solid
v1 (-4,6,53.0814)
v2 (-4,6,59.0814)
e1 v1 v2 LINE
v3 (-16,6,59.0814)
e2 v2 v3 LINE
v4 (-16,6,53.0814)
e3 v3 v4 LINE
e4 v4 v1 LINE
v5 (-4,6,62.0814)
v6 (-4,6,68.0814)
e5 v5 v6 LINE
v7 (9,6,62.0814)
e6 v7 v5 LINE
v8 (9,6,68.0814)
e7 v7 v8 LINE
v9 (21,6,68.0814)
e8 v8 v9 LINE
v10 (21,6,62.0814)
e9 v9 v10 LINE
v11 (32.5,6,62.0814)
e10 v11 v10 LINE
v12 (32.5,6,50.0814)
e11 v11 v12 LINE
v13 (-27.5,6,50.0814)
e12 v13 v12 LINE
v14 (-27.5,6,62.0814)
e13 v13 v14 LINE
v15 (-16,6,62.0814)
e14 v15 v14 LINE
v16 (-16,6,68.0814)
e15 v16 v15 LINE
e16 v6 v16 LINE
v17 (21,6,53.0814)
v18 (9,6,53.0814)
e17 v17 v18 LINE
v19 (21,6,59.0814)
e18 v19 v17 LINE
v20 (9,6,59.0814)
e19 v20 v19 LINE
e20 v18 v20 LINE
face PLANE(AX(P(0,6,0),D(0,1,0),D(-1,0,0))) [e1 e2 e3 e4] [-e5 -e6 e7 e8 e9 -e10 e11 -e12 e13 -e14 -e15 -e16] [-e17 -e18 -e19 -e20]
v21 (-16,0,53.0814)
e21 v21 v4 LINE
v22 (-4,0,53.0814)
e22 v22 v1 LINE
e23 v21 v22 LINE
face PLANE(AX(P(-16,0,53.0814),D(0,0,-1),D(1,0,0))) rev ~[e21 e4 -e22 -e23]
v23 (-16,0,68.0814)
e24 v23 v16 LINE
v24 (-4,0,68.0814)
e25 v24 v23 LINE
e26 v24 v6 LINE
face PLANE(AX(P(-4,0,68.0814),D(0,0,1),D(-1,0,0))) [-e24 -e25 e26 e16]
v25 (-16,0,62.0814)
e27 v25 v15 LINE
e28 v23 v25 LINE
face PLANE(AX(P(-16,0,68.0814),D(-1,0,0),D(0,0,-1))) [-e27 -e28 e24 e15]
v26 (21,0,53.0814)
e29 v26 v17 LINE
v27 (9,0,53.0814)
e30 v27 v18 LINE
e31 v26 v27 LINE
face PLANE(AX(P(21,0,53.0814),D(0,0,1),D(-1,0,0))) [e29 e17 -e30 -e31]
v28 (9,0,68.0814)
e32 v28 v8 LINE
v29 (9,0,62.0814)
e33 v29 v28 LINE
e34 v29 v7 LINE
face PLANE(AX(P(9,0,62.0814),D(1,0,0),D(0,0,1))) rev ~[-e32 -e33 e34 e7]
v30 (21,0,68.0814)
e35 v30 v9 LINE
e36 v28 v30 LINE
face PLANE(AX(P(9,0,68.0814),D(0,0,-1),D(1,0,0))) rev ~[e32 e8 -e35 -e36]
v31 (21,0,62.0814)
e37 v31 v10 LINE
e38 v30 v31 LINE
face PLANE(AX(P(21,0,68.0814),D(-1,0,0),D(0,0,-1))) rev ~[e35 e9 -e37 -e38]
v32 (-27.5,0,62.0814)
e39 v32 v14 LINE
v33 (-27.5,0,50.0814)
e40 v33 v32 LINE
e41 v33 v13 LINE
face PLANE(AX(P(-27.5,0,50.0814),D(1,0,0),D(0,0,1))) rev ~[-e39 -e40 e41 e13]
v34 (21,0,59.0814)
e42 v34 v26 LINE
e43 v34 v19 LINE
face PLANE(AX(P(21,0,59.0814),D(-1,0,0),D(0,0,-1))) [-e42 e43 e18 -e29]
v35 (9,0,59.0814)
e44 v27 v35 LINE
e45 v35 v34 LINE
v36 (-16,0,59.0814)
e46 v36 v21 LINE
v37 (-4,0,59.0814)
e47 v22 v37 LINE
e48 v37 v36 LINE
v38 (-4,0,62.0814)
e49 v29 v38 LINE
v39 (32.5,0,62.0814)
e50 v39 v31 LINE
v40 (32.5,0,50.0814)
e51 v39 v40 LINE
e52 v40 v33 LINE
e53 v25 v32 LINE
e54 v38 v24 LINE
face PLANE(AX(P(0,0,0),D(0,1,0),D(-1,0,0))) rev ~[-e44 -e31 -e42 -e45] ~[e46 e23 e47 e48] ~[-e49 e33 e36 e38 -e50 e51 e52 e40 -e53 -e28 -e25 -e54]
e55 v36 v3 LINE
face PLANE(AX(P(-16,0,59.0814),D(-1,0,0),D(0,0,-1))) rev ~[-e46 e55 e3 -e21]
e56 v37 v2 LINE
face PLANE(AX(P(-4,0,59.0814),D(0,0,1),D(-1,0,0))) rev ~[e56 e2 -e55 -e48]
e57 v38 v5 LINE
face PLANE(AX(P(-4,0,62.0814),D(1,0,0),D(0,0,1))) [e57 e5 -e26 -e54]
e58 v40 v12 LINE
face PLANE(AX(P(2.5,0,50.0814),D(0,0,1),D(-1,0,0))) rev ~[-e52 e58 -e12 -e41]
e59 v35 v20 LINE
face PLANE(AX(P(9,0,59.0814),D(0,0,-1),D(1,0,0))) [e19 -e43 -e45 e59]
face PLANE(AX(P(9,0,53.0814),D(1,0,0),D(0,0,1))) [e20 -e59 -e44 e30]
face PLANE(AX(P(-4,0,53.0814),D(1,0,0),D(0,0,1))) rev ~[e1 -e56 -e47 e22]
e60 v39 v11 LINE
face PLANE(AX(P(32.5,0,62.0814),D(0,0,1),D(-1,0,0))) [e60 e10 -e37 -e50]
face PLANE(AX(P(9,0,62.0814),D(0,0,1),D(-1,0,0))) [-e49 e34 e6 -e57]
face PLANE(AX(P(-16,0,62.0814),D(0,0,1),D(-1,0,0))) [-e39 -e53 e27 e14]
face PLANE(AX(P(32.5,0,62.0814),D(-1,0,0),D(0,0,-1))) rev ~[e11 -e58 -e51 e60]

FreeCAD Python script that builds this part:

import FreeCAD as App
import Part
import Sketcher
Q = App.Units.Quantity

doc = App.newDocument("Part")
body = doc.addObject("PartDesign::Body", "Body")

sketch1 = body.newObject("Sketcher::SketchObject", "Sketch")
sketch1.AttachmentSupport = (doc.getObject("XZ_Plane"), [""])
sketch1.MapMode = "FlatFace"
sketch1.addGeometry([
    Part.LineSegment(App.Vector(-28, 50, 0), App.Vector(-28, 62, 0)),
    Part.LineSegment(App.Vector(-28, 62, 0), App.Vector(-16, 62, 0)),
    Part.LineSegment(App.Vector(-16, 62, 0), App.Vector(-16, 68, 0)),
    Part.LineSegment(App.Vector(-16, 68, 0), App.Vector(-4, 68, 0)),
    Part.LineSegment(App.Vector(-4, 68, 0), App.Vector(-4, 62, 0)),
    Part.LineSegment(App.Vector(-4, 62, 0), App.Vector(9, 62, 0)),
    Part.LineSegment(App.Vector(9, 62, 0), App.Vector(9, 68, 0)),
    Part.LineSegment(App.Vector(9, 68, 0), App.Vector(21, 68, 0)),
    Part.LineSegment(App.Vector(21, 68, 0), App.Vector(21, 62, 0)),
    Part.LineSegment(App.Vector(21, 62, 0), App.Vector(32, 62, 0)),
    Part.LineSegment(App.Vector(32, 62, 0), App.Vector(32, 50, 0)),
    Part.LineSegment(App.Vector(32, 50, 0), App.Vector(-28, 50, 0)),
    Part.LineSegment(App.Vector(21, 59, 0), App.Vector(9, 59, 0)),
    Part.LineSegment(App.Vector(9, 59, 0), App.Vector(9, 53, 0)),
    Part.LineSegment(App.Vector(9, 53, 0), App.Vector(21, 53, 0)),
    Part.LineSegment(App.Vector(21, 53, 0), App.Vector(21, 59, 0)),
    Part.LineSegment(App.Vector(-4, 53, 0), App.Vector(-4, 59, 0)),
    Part.LineSegment(App.Vector(-4, 59, 0), App.Vector(-16, 59, 0)),
    Part.LineSegment(App.Vector(-16, 59, 0), App.Vector(-16, 53, 0)),
    Part.LineSegment(App.Vector(-16, 53, 0), App.Vector(-4, 53, 0)),
], False)
sketch1.addConstraint([
    Sketcher.Constraint("Coincident", 0, 2, 1, 1),
    Sketcher.Constraint("Coincident", 1, 2, 2, 1),
    Sketcher.Constraint("Coincident", 2, 2, 3, 1),
    Sketcher.Constraint("Coincident", 3, 2, 4, 1),
    Sketcher.Constraint("Coincident", 4, 2, 5, 1),
    Sketcher.Constraint("Coincident", 5, 2, 6, 1),
    Sketcher.Constraint("Coincident", 6, 2, 7, 1),
    Sketcher.Constraint("Coincident", 7, 2, 8, 1),
    Sketcher.Constraint("Coincident", 8, 2, 9, 1),
    Sketcher.Constraint("Coincident", 9, 2, 10, 1),
    Sketcher.Constraint("Coincident", 10, 2, 11, 1),
    Sketcher.Constraint("Coincident", 11, 2, 0, 1),
    Sketcher.Constraint("Coincident", 12, 2, 13, 1),
    Sketcher.Constraint("Coincident", 13, 2, 14, 1),
    Sketcher.Constraint("Coincident", 14, 2, 15, 1),
    Sketcher.Constraint("Coincident", 15, 2, 12, 1),
    Sketcher.Constraint("Coincident", 16, 2, 17, 1),
    Sketcher.Constraint("Coincident", 17, 2, 18, 1),
    Sketcher.Constraint("Coincident", 18, 2, 19, 1),
    Sketcher.Constraint("Coincident", 19, 2, 16, 1),
    Sketcher.Constraint("Vertical", 0),
    Sketcher.Constraint("Horizontal", 1),
    Sketcher.Constraint("Vertical", 2),
    Sketcher.Constraint("Horizontal", 3),
    Sketcher.Constraint("Vertical", 4),
    Sketcher.Constraint("Horizontal", 5),
    Sketcher.Constraint("Vertical", 6),
    Sketcher.Constraint("Horizontal", 7),
    Sketcher.Constraint("Vertical", 8),
    Sketcher.Constraint("Horizontal", 9),
    Sketcher.Constraint("Vertical", 10),
    Sketcher.Constraint("Horizontal", 11),
    Sketcher.Constraint("Horizontal", 12),
    Sketcher.Constraint("Vertical", 13),
    Sketcher.Constraint("Horizontal", 14),
    Sketcher.Constraint("Vertical", 15),
    Sketcher.Constraint("Vertical", 16),
    Sketcher.Constraint("Horizontal", 17),
    Sketcher.Constraint("Vertical", 18),
    Sketcher.Constraint("Horizontal", 19),
    Sketcher.Constraint("Horizontal", 1, 2, 4, 2),
    Sketcher.Constraint("Horizontal", 3, 2, 6, 2),
    Sketcher.Constraint("Horizontal", 5, 2, 8, 2),
    Sketcher.Constraint("Horizontal", 15, 2, 16, 2),
    Sketcher.Constraint("Horizontal", 14, 2, 18, 2),
    Sketcher.Constraint("Vertical", 6, 2, 12, 2),
    Sketcher.Constraint("Vertical", 8, 2, 14, 2),
    Sketcher.Constraint("Vertical", 4, 2, 16, 2),
    Sketcher.Constraint("Vertical", 2, 2, 17, 2),
    Sketcher.Constraint("Equal", 3, 7),
    Sketcher.Constraint("Equal", 1, 9),
    Sketcher.Constraint("Equal", 19, 0),
    Sketcher.Constraint("Equal", 8, 13),
    Sketcher.Constraint("DistanceX", 3, 1, 3, 2, Q("12 mm")),
    Sketcher.Constraint("DistanceX", 11, 2, 11, 1, Q("60 mm")),
    Sketcher.Constraint("DistanceY", 2, 1, 2, 2, Q("6 mm")),
    Sketcher.Constraint("DistanceY", 12, 2, 5, 2, Q("3 mm")),
    Sketcher.Constraint("DistanceX", 5, 1, 5, 2, Q("13 mm")),
    Sketcher.Constraint("DistanceX", 1, 2, -1, 1, Q("16 mm")),
    Sketcher.Constraint("DistanceY", -1, 1, 0, 2, Q("62.0814 mm")),
])
pad1 = body.newObject("PartDesign::Pad", "Pad")
pad1.Profile = sketch1
pad1.Length = 6
pad1.Reversed = True

sketch2 = body.newObject("Sketcher::SketchObject", "Sketch001")
sketch2.AttachmentSupport = (doc.getObject("XZ_Plane"), [""])
sketch2.MapMode = "FlatFace"
sketch2.addGeometry([
    Part.LineSegment(App.Vector(-8.5, 44.1, 0), App.Vector(-8.5, 50.1, 0)),
    Part.LineSegment(App.Vector(-8.5, 50.1, 0), App.Vector(-2.5, 50.1, 0)),
    Part.LineSegment(App.Vector(-2.5, 50.1, 0), App.Vector(-2.5, 44.1, 0)),
    Part.LineSegment(App.Vector(-2.5, 44.1, 0), App.Vector(-8.5, 44.1, 0)),
    Part.LineSegment(App.Vector(-8.5, -6.9, 0), App.Vector(-8.5, -0.9, 0)),
    Part.LineSegment(App.Vector(-8.5, -0.9, 0), App.Vector(-2.5, -0.9, 0)),
    Part.LineSegment(App.Vector(-2.5, -0.9, 0), App.Vector(-2.5, -6.9, 0)),
    Part.LineSegment(App.Vector(-2.5, -6.9, 0), App.Vector(-8.5, -6.9, 0)),
    Part.LineSegment(App.Vector(-8.5, 35.1, 0), App.Vector(-1.5, 35.1, 0)),
    Part.LineSegment(App.Vector(-1.5, 35.1, 0), App.Vector(-1.5, 40.1, 0)),
    Part.LineSegment(App.Vector(-1.5, 40.1, 0), App.Vector(5.5, 40.1, 0)),
    Part.LineSegment(App.Vector(5.5, 40.1, 0), App.Vector(5.5, 35.1, 0)),
    Part.LineSegment(App.Vector(5.5, 35.1, 0), App.Vector(9.5, 35.1, 0)),
    Part.LineSegment(App.Vector(9.5, 35.1, 0), App.Vector(9.5, 13.1, 0)),
    Part.LineSegment(App.Vector(9.5, 13.1, 0), App.Vector(-8.5, 13.1, 0)),
    Part.LineSegment(App.Vector(-8.5, 13.1, 0), App.Vector(-8.5, 35.1, 0)),
], False)
sketch2.addConstraint([
    Sketcher.Constraint("Coincident", 0, 2, 1, 1),
    Sketcher.Constraint("Coincident", 1, 2, 2, 1),
    Sketcher.Constraint("Coincident", 2, 2, 3, 1),
    Sketcher.Constraint("Coincident", 3, 2, 0, 1),
    Sketcher.Constraint("Coincident", 4, 2, 5, 1),
    Sketcher.Constraint("Coincident", 5, 2, 6, 1),
    Sketcher.Constraint("Coincident", 6, 2, 7, 1),
    Sketcher.Constraint("Coincident", 7, 2, 4, 1),
    Sketcher.Constraint("Coincident", 8, 2, 9, 1),
    Sketcher.Constraint("Coincident", 9, 2, 10, 1),
    Sketcher.Constraint("Coincident", 10, 2, 11, 1),
    Sketcher.Constraint("Coincident", 11, 2, 12, 1),
    Sketcher.Constraint("Coincident", 12, 2, 13, 1),
    Sketcher.Constraint("Coincident", 13, 2, 14, 1),
    Sketcher.Constraint("Coincident", 14, 2, 15, 1),
    Sketcher.Constraint("Coincident", 15, 2, 8, 1),
    Sketcher.Constraint("Vertical", 0),
    Sketcher.Constraint("Horizontal", 1),
    Sketcher.Constraint("Vertical", 2),
    Sketcher.Constraint("Horizontal", 3),
    Sketcher.Constraint("Vertical", 4),
    Sketcher.Constraint("Horizontal", 5),
    Sketcher.Constraint("Vertical", 6),
    Sketcher.Constraint("Horizontal", 7),
    Sketcher.Constraint("Horizontal", 8),
    Sketcher.Constraint("Vertical", 9),
    Sketcher.Constraint("Horizontal", 10),
    Sketcher.Constraint("Vertical", 11),
    Sketcher.Constraint("Horizontal", 12),
    Sketcher.Constraint("Vertical", 13),
    Sketcher.Constraint("Horizontal", 14),
    Sketcher.Constraint("Vertical", 15),
    Sketcher.Constraint("Horizontal", 8, 2, 11, 2),
    Sketcher.Constraint("Vertical", 3, 2, 4, 2),
    Sketcher.Constraint("Vertical", 2, 2, 5, 2),
    Sketcher.Constraint("Vertical", 7, 2, 14, 2),
    Sketcher.Constraint("Equal", 8, 10),
    Sketcher.Constraint("Equal", 7, 0),
    Sketcher.Constraint("Equal", 2, 4),
    Sketcher.Constraint("DistanceX", 1, 1, 1, 2, Q("6 mm")),
    Sketcher.Constraint("DistanceX", 8, 1, 8, 2, Q("7 mm")),
    Sketcher.Constraint("DistanceX", 14, 2, 14, 1, Q("18 mm")),
    Sketcher.Constraint("DistanceY", 9, 1, 9, 2, Q("5 mm")),
    Sketcher.Constraint("DistanceY", 13, 2, 13, 1, Q("22 mm")),
    Sketcher.Constraint("DistanceY", 4, 2, 3, 2, Q("45 mm")),
    Sketcher.Constraint("DistanceY", 8, 2, 2, 2, Q("9 mm")),
    Sketcher.Constraint("DistanceX", 0, 2, -1, 1, Q("8.5 mm")),
    Sketcher.Constraint("DistanceY", -1, 1, 0, 2, Q("50.0814 mm")),
])
pocket1 = body.newObject("PartDesign::Pocket", "Pocket")
pocket1.Profile = sketch2
pocket1.Type = "ThroughAll"

doc.recompute()
